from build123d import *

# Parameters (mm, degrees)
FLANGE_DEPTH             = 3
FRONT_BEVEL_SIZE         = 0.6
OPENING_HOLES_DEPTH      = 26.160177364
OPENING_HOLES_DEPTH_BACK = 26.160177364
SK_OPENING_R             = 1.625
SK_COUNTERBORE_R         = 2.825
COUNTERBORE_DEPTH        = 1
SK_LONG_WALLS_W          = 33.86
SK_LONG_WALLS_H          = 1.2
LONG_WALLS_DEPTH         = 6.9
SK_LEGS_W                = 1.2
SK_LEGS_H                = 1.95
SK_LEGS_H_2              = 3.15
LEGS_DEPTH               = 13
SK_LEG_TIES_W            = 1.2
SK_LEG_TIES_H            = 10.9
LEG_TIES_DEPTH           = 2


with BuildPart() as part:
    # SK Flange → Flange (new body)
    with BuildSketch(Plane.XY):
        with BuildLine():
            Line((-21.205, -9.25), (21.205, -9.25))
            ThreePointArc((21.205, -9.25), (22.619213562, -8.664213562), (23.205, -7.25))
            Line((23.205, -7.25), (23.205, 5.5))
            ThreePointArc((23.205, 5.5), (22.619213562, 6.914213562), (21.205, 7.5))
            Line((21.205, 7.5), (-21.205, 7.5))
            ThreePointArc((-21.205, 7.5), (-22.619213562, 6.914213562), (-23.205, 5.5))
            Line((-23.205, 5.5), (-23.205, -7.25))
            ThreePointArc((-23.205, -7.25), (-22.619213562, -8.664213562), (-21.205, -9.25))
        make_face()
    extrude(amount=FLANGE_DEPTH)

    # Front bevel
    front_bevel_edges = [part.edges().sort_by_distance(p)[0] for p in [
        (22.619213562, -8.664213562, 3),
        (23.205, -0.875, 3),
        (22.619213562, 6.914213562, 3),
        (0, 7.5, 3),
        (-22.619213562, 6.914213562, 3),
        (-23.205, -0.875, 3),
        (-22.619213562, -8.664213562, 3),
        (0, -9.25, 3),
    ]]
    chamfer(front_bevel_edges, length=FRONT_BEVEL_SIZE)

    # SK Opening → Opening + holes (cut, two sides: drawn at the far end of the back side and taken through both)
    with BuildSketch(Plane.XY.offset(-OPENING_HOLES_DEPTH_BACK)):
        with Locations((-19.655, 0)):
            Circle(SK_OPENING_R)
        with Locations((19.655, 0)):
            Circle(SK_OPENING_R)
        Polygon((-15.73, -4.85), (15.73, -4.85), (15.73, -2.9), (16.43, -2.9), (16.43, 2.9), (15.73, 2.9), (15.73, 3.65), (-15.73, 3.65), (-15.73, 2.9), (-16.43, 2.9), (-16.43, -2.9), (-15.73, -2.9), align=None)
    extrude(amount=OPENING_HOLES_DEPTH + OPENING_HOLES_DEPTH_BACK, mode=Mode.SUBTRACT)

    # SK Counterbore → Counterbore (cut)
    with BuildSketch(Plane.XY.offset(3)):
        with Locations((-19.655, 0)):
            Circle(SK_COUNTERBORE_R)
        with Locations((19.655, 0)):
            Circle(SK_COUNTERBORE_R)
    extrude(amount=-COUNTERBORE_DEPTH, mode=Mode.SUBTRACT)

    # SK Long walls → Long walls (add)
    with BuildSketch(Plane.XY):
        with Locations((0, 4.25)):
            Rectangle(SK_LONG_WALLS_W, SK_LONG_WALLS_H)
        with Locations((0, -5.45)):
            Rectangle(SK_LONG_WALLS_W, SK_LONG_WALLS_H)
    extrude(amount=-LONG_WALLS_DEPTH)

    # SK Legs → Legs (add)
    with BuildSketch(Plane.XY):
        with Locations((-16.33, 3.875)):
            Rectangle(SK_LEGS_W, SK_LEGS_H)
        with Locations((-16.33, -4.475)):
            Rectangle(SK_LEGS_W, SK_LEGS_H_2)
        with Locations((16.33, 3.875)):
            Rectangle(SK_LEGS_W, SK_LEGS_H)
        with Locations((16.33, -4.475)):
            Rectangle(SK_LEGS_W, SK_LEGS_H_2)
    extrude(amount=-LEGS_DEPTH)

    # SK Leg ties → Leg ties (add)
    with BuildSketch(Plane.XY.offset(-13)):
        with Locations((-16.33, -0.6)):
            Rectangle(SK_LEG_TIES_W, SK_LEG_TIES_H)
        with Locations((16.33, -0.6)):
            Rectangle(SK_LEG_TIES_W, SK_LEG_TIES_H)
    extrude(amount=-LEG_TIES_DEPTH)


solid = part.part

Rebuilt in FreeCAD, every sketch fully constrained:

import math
import FreeCAD as App
import Part
import Sketcher
from FreeCAD import Vector
Q = App.Units.Quantity


def edges_at(feature, points):
    """Names of the edges that pass closest to the given points."""
    edges = feature.Shape.Edges
    near = lambda p: min(range(len(edges)), key=lambda i: edges[i].distToShape(Part.Vertex(*p))[0])
    return sorted({f"Edge{near(p) + 1}" for p in points})

doc = App.newDocument("Part")
body = doc.addObject("PartDesign::Body", "Body")

# Sketch on XY plane
sketch1 = doc.addObject("Sketcher::SketchObject", "Sketch")
body.addObject(sketch1)
sketch1.AttachmentSupport = (doc.XY_Plane, [""])
sketch1.MapMode = "FlatFace"
sketch1.addGeometry([
    Part.LineSegment(Vector(-21.2, -9.2, 0), Vector(21.2, -9.2, 0)),  # 0
    Part.ArcOfCircle(Part.Circle(Vector(21.2, -7.2, 0), Vector(0, 0, 1), 2), math.radians(-90), math.radians(0)),  # 1
    Part.LineSegment(Vector(23.2, -7.2, 0), Vector(23.2, 5.5, 0)),  # 2
    Part.ArcOfCircle(Part.Circle(Vector(21.2, 5.5, 0), Vector(0, 0, 1), 2), math.radians(0), math.radians(90)),  # 3
    Part.LineSegment(Vector(21.2, 7.5, 0), Vector(-21.2, 7.5, 0)),  # 4
    Part.ArcOfCircle(Part.Circle(Vector(-21.2, 5.5, 0), Vector(0, 0, 1), 2), math.radians(90), math.radians(180)),  # 5
    Part.LineSegment(Vector(-23.2, 5.5, 0), Vector(-23.2, -7.2, 0)),  # 6
    Part.ArcOfCircle(Part.Circle(Vector(-21.2, -7.2, 0), Vector(0, 0, 1), 2), math.radians(-180), math.radians(-90)),  # 7
], False)
sketch1.addConstraint([
    Sketcher.Constraint("Tangent", 0, 2, 1, 1),
    Sketcher.Constraint("Tangent", 1, 2, 2, 1),
    Sketcher.Constraint("Tangent", 2, 2, 3, 1),
    Sketcher.Constraint("Tangent", 3, 2, 4, 1),
    Sketcher.Constraint("Tangent", 4, 2, 5, 1),
    Sketcher.Constraint("Tangent", 5, 2, 6, 1),
    Sketcher.Constraint("Tangent", 6, 2, 7, 1),
    Sketcher.Constraint("Tangent", 7, 2, 0, 1),
    Sketcher.Constraint("Horizontal", 0),
    Sketcher.Constraint("Vertical", 2),
    Sketcher.Constraint("Horizontal", 4),
    Sketcher.Constraint("Vertical", 6),
    Sketcher.Constraint("Equal", 1, 3),
    Sketcher.Constraint("Equal", 3, 5),
    Sketcher.Constraint("Equal", 5, 7),
    Sketcher.Constraint("Radius", 1, Q("2 mm")),
    Sketcher.Constraint("DistanceX", 0, 1, 0, 2, Q("42.41 mm")),
    Sketcher.Constraint("DistanceY", 2, 1, 2, 2, Q("12.75 mm")),
    Sketcher.Constraint("DistanceY", -1, 1, 3, 3, Q("5.5 mm")),
    Sketcher.Constraint("DistanceX", -1, 1, 1, 3, Q("21.205 mm")),
])
pad1 = doc.addObject("PartDesign::Pad", "Pad")
body.addObject(pad1)
pad1.Profile = sketch1
pad1.Length = 3
doc.recompute()

chamfer = doc.addObject("PartDesign::Chamfer", "Chamfer")
body.addObject(chamfer)
chamfer.Base = (pad1, edges_at(pad1, [
    (22.619, -8.664, 3),
    (23.205, -0.875, 3),
    (22.619, 6.914, 3),
    (0, 7.5, 3),
    (-22.619, 6.914, 3),
    (-23.205, -0.875, 3),
    (-22.619, -8.664, 3),
    (0, -9.25, 3),
]))
chamfer.Size = 0.6

# Sketch on XY plane
sketch2 = doc.addObject("Sketcher::SketchObject", "Sketch001")
body.addObject(sketch2)
sketch2.AttachmentSupport = (doc.XY_Plane, [""])
sketch2.MapMode = "FlatFace"
sketch2.addGeometry([
    Part.Circle(Vector(-19.7, 0, 0), Vector(0, 0, 1), 1.6),  # 0
    Part.Circle(Vector(19.7, 0, 0), Vector(0, 0, 1), 1.6),  # 1
    Part.LineSegment(Vector(-15.7, -4.8, 0), Vector(15.7, -4.8, 0)),  # 2
    Part.LineSegment(Vector(15.7, -4.8, 0), Vector(15.7, -2.9, 0)),  # 3
    Part.LineSegment(Vector(15.7, -2.9, 0), Vector(16.4, -2.9, 0)),  # 4
    Part.LineSegment(Vector(16.4, -2.9, 0), Vector(16.4, 2.9, 0)),  # 5
    Part.LineSegment(Vector(16.4, 2.9, 0), Vector(15.7, 2.9, 0)),  # 6
    Part.LineSegment(Vector(15.7, 2.9, 0), Vector(15.7, 3.6, 0)),  # 7
    Part.LineSegment(Vector(15.7, 3.6, 0), Vector(-15.7, 3.6, 0)),  # 8
    Part.LineSegment(Vector(-15.7, 3.6, 0), Vector(-15.7, 2.9, 0)),  # 9
    Part.LineSegment(Vector(-15.7, 2.9, 0), Vector(-16.4, 2.9, 0)),  # 10
    Part.LineSegment(Vector(-16.4, 2.9, 0), Vector(-16.4, -2.9, 0)),  # 11
    Part.LineSegment(Vector(-16.4, -2.9, 0), Vector(-15.7, -2.9, 0)),  # 12
    Part.LineSegment(Vector(-15.7, -2.9, 0), Vector(-15.7, -4.8, 0)),  # 13
], False)
sketch2.addConstraint([
    Sketcher.Constraint("Coincident", 2, 2, 3, 1),
    Sketcher.Constraint("Coincident", 3, 2, 4, 1),
    Sketcher.Constraint("Coincident", 4, 2, 5, 1),
    Sketcher.Constraint("Coincident", 5, 2, 6, 1),
    Sketcher.Constraint("Coincident", 6, 2, 7, 1),
    Sketcher.Constraint("Coincident", 7, 2, 8, 1),
    Sketcher.Constraint("Coincident", 8, 2, 9, 1),
    Sketcher.Constraint("Coincident", 9, 2, 10, 1),
    Sketcher.Constraint("Coincident", 10, 2, 11, 1),
    Sketcher.Constraint("Coincident", 11, 2, 12, 1),
    Sketcher.Constraint("Coincident", 12, 2, 13, 1),
    Sketcher.Constraint("Coincident", 13, 2, 2, 1),
    Sketcher.Constraint("Horizontal", 2),
    Sketcher.Constraint("Vertical", 3),
    Sketcher.Constraint("Horizontal", 4),
    Sketcher.Constraint("Vertical", 5),
    Sketcher.Constraint("Horizontal", 6),
    Sketcher.Constraint("Vertical", 7),
    Sketcher.Constraint("Horizontal", 8),
    Sketcher.Constraint("Vertical", 9),
    Sketcher.Constraint("Horizontal", 10),
    Sketcher.Constraint("Vertical", 11),
    Sketcher.Constraint("Horizontal", 12),
    Sketcher.Constraint("Vertical", 13),
    Sketcher.Constraint("Equal", 0, 1),
    Sketcher.Constraint("Symmetric", 0, 3, 1, 3, -1, 1),
    Sketcher.Constraint("Symmetric", 3, 2, 9, 2, -1, 1),
    Sketcher.Constraint("Symmetric", 5, 2, 11, 2, -1, 1),
    Sketcher.Constraint("Symmetric", 6, 2, 9, 2, -2),
    Sketcher.Constraint("PointOnObject", 0, 3, -1),
    Sketcher.Constraint("Vertical", 9, 2, 12, 2),
    Sketcher.Constraint("Diameter", 0, Q("3.25 mm")),
    Sketcher.Constraint("DistanceX", 4, 1, 4, 2, Q("0.7 mm")),
    Sketcher.Constraint("DistanceY", 5, 1, 5, 2, Q("5.8 mm")),
    Sketcher.Constraint("DistanceX", 2, 1, 2, 2, Q("31.46 mm")),
    Sketcher.Constraint("DistanceY", 3, 1, 3, 2, Q("1.95 mm")),
    Sketcher.Constraint("DistanceY", 7, 1, 7, 2, Q("0.75 mm")),
    Sketcher.Constraint("DistanceX", 0, 3, 1, 3, Q("39.31 mm")),
])
pocket1 = doc.addObject("PartDesign::Pocket", "Pocket")
body.addObject(pocket1)
pocket1.Profile = sketch2
pocket1.Type = "ThroughAll"
pocket1.Midplane = True

# Sketch on XY plane
sketch3 = doc.addObject("Sketcher::SketchObject", "Sketch002")
body.addObject(sketch3)
sketch3.AttachmentSupport = (doc.XY_Plane, [""])
sketch3.MapMode = "FlatFace"
sketch3.AttachmentOffset = App.Placement(Vector(0, 0, 3), App.Rotation())
sketch3.addGeometry([
    Part.Circle(Vector(-19.7, 0, 0), Vector(0, 0, 1), 2.8),
    Part.Circle(Vector(19.7, 0, 0), Vector(0, 0, 1), 2.8),
], False)
sketch3.addConstraint([
    Sketcher.Constraint("Equal", 0, 1),
    Sketcher.Constraint("Symmetric", 0, 3, 1, 3, -1, 1),
    Sketcher.Constraint("PointOnObject", 0, 3, -1),
    Sketcher.Constraint("Diameter", 0, Q("5.65 mm")),
    Sketcher.Constraint("DistanceX", 0, 3, 1, 3, Q("39.31 mm")),
])
pocket2 = doc.addObject("PartDesign::Pocket", "Pocket001")
body.addObject(pocket2)
pocket2.Profile = sketch3
pocket2.Length = 1

# Sketch on XY plane
sketch4 = doc.addObject("Sketcher::SketchObject", "Sketch003")
body.addObject(sketch4)
sketch4.AttachmentSupport = (doc.XY_Plane, [""])
sketch4.MapMode = "FlatFace"
sketch4.addGeometry([
    Part.LineSegment(Vector(-16.9, 4.8, 0), Vector(-16.9, 3.6, 0)),  # 0
    Part.LineSegment(Vector(-16.9, 3.6, 0), Vector(16.9, 3.6, 0)),  # 1
    Part.LineSegment(Vector(16.9, 3.6, 0), Vector(16.9, 4.8, 0)),  # 2
    Part.LineSegment(Vector(16.9, 4.8, 0), Vector(-16.9, 4.8, 0)),  # 3
    Part.LineSegment(Vector(-16.9, -4.8, 0), Vector(-16.9, -6, 0)),  # 4
    Part.LineSegment(Vector(-16.9, -6, 0), Vector(16.9, -6, 0)),  # 5
    Part.LineSegment(Vector(16.9, -6, 0), Vector(16.9, -4.8, 0)),  # 6
    Part.LineSegment(Vector(16.9, -4.8, 0), Vector(-16.9, -4.8, 0)),  # 7
], False)
sketch4.addConstraint([
    Sketcher.Constraint("Coincident", 0, 2, 1, 1),
    Sketcher.Constraint("Coincident", 1, 2, 2, 1),
    Sketcher.Constraint("Coincident", 2, 2, 3, 1),
    Sketcher.Constraint("Coincident", 3, 2, 0, 1),
    Sketcher.Constraint("Coincident", 4, 2, 5, 1),
    Sketcher.Constraint("Coincident", 5, 2, 6, 1),
    Sketcher.Constraint("Coincident", 6, 2, 7, 1),
    Sketcher.Constraint("Coincident", 7, 2, 4, 1),
    Sketcher.Constraint("Vertical", 0),
    Sketcher.Constraint("Horizontal", 1),
    Sketcher.Constraint("Vertical", 2),
    Sketcher.Constraint("Horizontal", 3),
    Sketcher.Constraint("Vertical", 4),
    Sketcher.Constraint("Horizontal", 5),
    Sketcher.Constraint("Vertical", 6),
    Sketcher.Constraint("Horizontal", 7),
    Sketcher.Constraint("Symmetric", 3, 2, 6, 2, -1, 1),
    Sketcher.Constraint("Vertical", 3, 2, 4, 2),
    Sketcher.Constraint("Vertical", 2, 2, 5, 2),
    Sketcher.Constraint("Equal", 2, 4),
    Sketcher.Constraint("DistanceY", 0, 2, 0, 1, Q("1.2 mm")),
    Sketcher.Constraint("DistanceX", 1, 1, 1, 2, Q("33.86 mm")),
    Sketcher.Constraint("DistanceY", 4, 2, 0, 2, Q("9.7 mm")),
])
pad2 = doc.addObject("PartDesign::Pad", "Pad001")
body.addObject(pad2)
pad2.Profile = sketch4
pad2.Length = 6.9
pad2.Reversed = True

# Sketch on XY plane
sketch5 = doc.addObject("Sketcher::SketchObject", "Sketch004")
body.addObject(sketch5)
sketch5.AttachmentSupport = (doc.XY_Plane, [""])
sketch5.MapMode = "FlatFace"
sketch5.addGeometry([
    Part.LineSegment(Vector(-16.9, 4.8, 0), Vector(-16.9, 2.9, 0)),  # 0
    Part.LineSegment(Vector(-16.9, 2.9, 0), Vector(-15.7, 2.9, 0)),  # 1
    Part.LineSegment(Vector(-15.7, 2.9, 0), Vector(-15.7, 4.8, 0)),  # 2
    Part.LineSegment(Vector(-15.7, 4.8, 0), Vector(-16.9, 4.8, 0)),  # 3
    Part.LineSegment(Vector(-16.9, -2.9, 0), Vector(-16.9, -6, 0)),  # 4
    Part.LineSegment(Vector(-16.9, -6, 0), Vector(-15.7, -6, 0)),  # 5
    Part.LineSegment(Vector(-15.7, -6, 0), Vector(-15.7, -2.9, 0)),  # 6
    Part.LineSegment(Vector(-15.7, -2.9, 0), Vector(-16.9, -2.9, 0)),  # 7
    Part.LineSegment(Vector(15.7, 4.8, 0), Vector(15.7, 2.9, 0)),  # 8
    Part.LineSegment(Vector(15.7, 2.9, 0), Vector(16.9, 2.9, 0)),  # 9
    Part.LineSegment(Vector(16.9, 2.9, 0), Vector(16.9, 4.8, 0)),  # 10
    Part.LineSegment(Vector(16.9, 4.8, 0), Vector(15.7, 4.8, 0)),  # 11
    Part.LineSegment(Vector(15.7, -2.9, 0), Vector(15.7, -6, 0)),  # 12
    Part.LineSegment(Vector(15.7, -6, 0), Vector(16.9, -6, 0)),  # 13
    Part.LineSegment(Vector(16.9, -6, 0), Vector(16.9, -2.9, 0)),  # 14
    Part.LineSegment(Vector(16.9, -2.9, 0), Vector(15.7, -2.9, 0)),  # 15
], False)
sketch5.addConstraint([
    Sketcher.Constraint("Coincident", 0, 2, 1, 1),
    Sketcher.Constraint("Coincident", 1, 2, 2, 1),
    Sketcher.Constraint("Coincident", 2, 2, 3, 1),
    Sketcher.Constraint("Coincident", 3, 2, 0, 1),
    Sketcher.Constraint("Coincident", 4, 2, 5, 1),
    Sketcher.Constraint("Coincident", 5, 2, 6, 1),
    Sketcher.Constraint("Coincident", 6, 2, 7, 1),
    Sketcher.Constraint("Coincident", 7, 2, 4, 1),
    Sketcher.Constraint("Coincident", 8, 2, 9, 1),
    Sketcher.Constraint("Coincident", 9, 2, 10, 1),
    Sketcher.Constraint("Coincident", 10, 2, 11, 1),
    Sketcher.Constraint("Coincident", 11, 2, 8, 1),
    Sketcher.Constraint("Coincident", 12, 2, 13, 1),
    Sketcher.Constraint("Coincident", 13, 2, 14, 1),
    Sketcher.Constraint("Coincident", 14, 2, 15, 1),
    Sketcher.Constraint("Coincident", 15, 2, 12, 1),
    Sketcher.Constraint("Vertical", 0),
    Sketcher.Constraint("Horizontal", 1),
    Sketcher.Constraint("Vertical", 2),
    Sketcher.Constraint("Horizontal", 3),
    Sketcher.Constraint("Vertical", 4),
    Sketcher.Constraint("Horizontal", 5),
    Sketcher.Constraint("Vertical", 6),
    Sketcher.Constraint("Horizontal", 7),
    Sketcher.Constraint("Vertical", 8),
    Sketcher.Constraint("Horizontal", 9),
    Sketcher.Constraint("Vertical", 10),
    Sketcher.Constraint("Horizontal", 11),
    Sketcher.Constraint("Vertical", 12),
    Sketcher.Constraint("Horizontal", 13),
    Sketcher.Constraint("Vertical", 14),
    Sketcher.Constraint("Horizontal", 15),
    Sketcher.Constraint("Symmetric", 6, 2, 8, 2, -1, 1),
    Sketcher.Constraint("Symmetric", 0, 2, 14, 2, -1, 1),
    Sketcher.Constraint("Symmetric", 1, 2, 8, 2, -2),
    Sketcher.Constraint("Symmetric", 3, 2, 10, 2, -2),
    Sketcher.Constraint("Symmetric", 5, 2, 12, 2, -2),
    Sketcher.Constraint("Vertical", 3, 2, 4, 2),
    Sketcher.Constraint("DistanceX", 1, 1, 1, 2, Q("1.2 mm")),
    Sketcher.Constraint("DistanceY", 0, 2, 0, 1, Q("1.95 mm")),
    Sketcher.Constraint("DistanceY", 4, 2, 4, 1, Q("3.15 mm")),
    Sketcher.Constraint("DistanceY", -1, 1, 0, 2, Q("2.9 mm")),
    Sketcher.Constraint("DistanceX", 0, 2, -1, 1, Q("16.93 mm")),
])
pad3 = doc.addObject("PartDesign::Pad", "Pad002")
body.addObject(pad3)
pad3.Profile = sketch5
pad3.Length = 13
pad3.Reversed = True

# Sketch on XY plane
sketch6 = doc.addObject("Sketcher::SketchObject", "Sketch005")
body.addObject(sketch6)
sketch6.AttachmentSupport = (doc.XY_Plane, [""])
sketch6.MapMode = "FlatFace"
sketch6.AttachmentOffset = App.Placement(Vector(0, 0, -13), App.Rotation())
sketch6.addGeometry([
    Part.LineSegment(Vector(-16.9, 4.8, 0), Vector(-16.9, -6, 0)),  # 0
    Part.LineSegment(Vector(-16.9, -6, 0), Vector(-15.7, -6, 0)),  # 1
    Part.LineSegment(Vector(-15.7, -6, 0), Vector(-15.7, 4.8, 0)),  # 2
    Part.LineSegment(Vector(-15.7, 4.8, 0), Vector(-16.9, 4.8, 0)),  # 3
    Part.LineSegment(Vector(15.7, 4.8, 0), Vector(15.7, -6, 0)),  # 4
    Part.LineSegment(Vector(15.7, -6, 0), Vector(16.9, -6, 0)),  # 5
    Part.LineSegment(Vector(16.9, -6, 0), Vector(16.9, 4.8, 0)),  # 6
    Part.LineSegment(Vector(16.9, 4.8, 0), Vector(15.7, 4.8, 0)),  # 7
], False)
sketch6.addConstraint([
    Sketcher.Constraint("Coincident", 0, 2, 1, 1),
    Sketcher.Constraint("Coincident", 1, 2, 2, 1),
    Sketcher.Constraint("Coincident", 2, 2, 3, 1),
    Sketcher.Constraint("Coincident", 3, 2, 0, 1),
    Sketcher.Constraint("Coincident", 4, 2, 5, 1),
    Sketcher.Constraint("Coincident", 5, 2, 6, 1),
    Sketcher.Constraint("Coincident", 6, 2, 7, 1),
    Sketcher.Constraint("Coincident", 7, 2, 4, 1),
    Sketcher.Constraint("Vertical", 0),
    Sketcher.Constraint("Horizontal", 1),
    Sketcher.Constraint("Vertical", 2),
    Sketcher.Constraint("Horizontal", 3),
    Sketcher.Constraint("Vertical", 4),
    Sketcher.Constraint("Horizontal", 5),
    Sketcher.Constraint("Vertical", 6),
    Sketcher.Constraint("Horizontal", 7),
    Sketcher.Constraint("Symmetric", 1, 2, 4, 2, -2),
    Sketcher.Constraint("Symmetric", 3, 2, 6, 2, -2),
    Sketcher.Constraint("DistanceX", 1, 1, 1, 2, Q("1.2 mm")),
    Sketcher.Constraint("DistanceY", 0, 2, 0, 1, Q("10.9 mm")),
    Sketcher.Constraint("DistanceX", 0, 2, -1, 1, Q("16.93 mm")),
    Sketcher.Constraint("DistanceY", 0, 2, -1, 1, Q("6.05 mm")),
])
pad4 = doc.addObject("PartDesign::Pad", "Pad003")
body.addObject(pad4)
pad4.Profile = sketch6
pad4.Length = 2
pad4.Reversed = True

doc.recompute()
